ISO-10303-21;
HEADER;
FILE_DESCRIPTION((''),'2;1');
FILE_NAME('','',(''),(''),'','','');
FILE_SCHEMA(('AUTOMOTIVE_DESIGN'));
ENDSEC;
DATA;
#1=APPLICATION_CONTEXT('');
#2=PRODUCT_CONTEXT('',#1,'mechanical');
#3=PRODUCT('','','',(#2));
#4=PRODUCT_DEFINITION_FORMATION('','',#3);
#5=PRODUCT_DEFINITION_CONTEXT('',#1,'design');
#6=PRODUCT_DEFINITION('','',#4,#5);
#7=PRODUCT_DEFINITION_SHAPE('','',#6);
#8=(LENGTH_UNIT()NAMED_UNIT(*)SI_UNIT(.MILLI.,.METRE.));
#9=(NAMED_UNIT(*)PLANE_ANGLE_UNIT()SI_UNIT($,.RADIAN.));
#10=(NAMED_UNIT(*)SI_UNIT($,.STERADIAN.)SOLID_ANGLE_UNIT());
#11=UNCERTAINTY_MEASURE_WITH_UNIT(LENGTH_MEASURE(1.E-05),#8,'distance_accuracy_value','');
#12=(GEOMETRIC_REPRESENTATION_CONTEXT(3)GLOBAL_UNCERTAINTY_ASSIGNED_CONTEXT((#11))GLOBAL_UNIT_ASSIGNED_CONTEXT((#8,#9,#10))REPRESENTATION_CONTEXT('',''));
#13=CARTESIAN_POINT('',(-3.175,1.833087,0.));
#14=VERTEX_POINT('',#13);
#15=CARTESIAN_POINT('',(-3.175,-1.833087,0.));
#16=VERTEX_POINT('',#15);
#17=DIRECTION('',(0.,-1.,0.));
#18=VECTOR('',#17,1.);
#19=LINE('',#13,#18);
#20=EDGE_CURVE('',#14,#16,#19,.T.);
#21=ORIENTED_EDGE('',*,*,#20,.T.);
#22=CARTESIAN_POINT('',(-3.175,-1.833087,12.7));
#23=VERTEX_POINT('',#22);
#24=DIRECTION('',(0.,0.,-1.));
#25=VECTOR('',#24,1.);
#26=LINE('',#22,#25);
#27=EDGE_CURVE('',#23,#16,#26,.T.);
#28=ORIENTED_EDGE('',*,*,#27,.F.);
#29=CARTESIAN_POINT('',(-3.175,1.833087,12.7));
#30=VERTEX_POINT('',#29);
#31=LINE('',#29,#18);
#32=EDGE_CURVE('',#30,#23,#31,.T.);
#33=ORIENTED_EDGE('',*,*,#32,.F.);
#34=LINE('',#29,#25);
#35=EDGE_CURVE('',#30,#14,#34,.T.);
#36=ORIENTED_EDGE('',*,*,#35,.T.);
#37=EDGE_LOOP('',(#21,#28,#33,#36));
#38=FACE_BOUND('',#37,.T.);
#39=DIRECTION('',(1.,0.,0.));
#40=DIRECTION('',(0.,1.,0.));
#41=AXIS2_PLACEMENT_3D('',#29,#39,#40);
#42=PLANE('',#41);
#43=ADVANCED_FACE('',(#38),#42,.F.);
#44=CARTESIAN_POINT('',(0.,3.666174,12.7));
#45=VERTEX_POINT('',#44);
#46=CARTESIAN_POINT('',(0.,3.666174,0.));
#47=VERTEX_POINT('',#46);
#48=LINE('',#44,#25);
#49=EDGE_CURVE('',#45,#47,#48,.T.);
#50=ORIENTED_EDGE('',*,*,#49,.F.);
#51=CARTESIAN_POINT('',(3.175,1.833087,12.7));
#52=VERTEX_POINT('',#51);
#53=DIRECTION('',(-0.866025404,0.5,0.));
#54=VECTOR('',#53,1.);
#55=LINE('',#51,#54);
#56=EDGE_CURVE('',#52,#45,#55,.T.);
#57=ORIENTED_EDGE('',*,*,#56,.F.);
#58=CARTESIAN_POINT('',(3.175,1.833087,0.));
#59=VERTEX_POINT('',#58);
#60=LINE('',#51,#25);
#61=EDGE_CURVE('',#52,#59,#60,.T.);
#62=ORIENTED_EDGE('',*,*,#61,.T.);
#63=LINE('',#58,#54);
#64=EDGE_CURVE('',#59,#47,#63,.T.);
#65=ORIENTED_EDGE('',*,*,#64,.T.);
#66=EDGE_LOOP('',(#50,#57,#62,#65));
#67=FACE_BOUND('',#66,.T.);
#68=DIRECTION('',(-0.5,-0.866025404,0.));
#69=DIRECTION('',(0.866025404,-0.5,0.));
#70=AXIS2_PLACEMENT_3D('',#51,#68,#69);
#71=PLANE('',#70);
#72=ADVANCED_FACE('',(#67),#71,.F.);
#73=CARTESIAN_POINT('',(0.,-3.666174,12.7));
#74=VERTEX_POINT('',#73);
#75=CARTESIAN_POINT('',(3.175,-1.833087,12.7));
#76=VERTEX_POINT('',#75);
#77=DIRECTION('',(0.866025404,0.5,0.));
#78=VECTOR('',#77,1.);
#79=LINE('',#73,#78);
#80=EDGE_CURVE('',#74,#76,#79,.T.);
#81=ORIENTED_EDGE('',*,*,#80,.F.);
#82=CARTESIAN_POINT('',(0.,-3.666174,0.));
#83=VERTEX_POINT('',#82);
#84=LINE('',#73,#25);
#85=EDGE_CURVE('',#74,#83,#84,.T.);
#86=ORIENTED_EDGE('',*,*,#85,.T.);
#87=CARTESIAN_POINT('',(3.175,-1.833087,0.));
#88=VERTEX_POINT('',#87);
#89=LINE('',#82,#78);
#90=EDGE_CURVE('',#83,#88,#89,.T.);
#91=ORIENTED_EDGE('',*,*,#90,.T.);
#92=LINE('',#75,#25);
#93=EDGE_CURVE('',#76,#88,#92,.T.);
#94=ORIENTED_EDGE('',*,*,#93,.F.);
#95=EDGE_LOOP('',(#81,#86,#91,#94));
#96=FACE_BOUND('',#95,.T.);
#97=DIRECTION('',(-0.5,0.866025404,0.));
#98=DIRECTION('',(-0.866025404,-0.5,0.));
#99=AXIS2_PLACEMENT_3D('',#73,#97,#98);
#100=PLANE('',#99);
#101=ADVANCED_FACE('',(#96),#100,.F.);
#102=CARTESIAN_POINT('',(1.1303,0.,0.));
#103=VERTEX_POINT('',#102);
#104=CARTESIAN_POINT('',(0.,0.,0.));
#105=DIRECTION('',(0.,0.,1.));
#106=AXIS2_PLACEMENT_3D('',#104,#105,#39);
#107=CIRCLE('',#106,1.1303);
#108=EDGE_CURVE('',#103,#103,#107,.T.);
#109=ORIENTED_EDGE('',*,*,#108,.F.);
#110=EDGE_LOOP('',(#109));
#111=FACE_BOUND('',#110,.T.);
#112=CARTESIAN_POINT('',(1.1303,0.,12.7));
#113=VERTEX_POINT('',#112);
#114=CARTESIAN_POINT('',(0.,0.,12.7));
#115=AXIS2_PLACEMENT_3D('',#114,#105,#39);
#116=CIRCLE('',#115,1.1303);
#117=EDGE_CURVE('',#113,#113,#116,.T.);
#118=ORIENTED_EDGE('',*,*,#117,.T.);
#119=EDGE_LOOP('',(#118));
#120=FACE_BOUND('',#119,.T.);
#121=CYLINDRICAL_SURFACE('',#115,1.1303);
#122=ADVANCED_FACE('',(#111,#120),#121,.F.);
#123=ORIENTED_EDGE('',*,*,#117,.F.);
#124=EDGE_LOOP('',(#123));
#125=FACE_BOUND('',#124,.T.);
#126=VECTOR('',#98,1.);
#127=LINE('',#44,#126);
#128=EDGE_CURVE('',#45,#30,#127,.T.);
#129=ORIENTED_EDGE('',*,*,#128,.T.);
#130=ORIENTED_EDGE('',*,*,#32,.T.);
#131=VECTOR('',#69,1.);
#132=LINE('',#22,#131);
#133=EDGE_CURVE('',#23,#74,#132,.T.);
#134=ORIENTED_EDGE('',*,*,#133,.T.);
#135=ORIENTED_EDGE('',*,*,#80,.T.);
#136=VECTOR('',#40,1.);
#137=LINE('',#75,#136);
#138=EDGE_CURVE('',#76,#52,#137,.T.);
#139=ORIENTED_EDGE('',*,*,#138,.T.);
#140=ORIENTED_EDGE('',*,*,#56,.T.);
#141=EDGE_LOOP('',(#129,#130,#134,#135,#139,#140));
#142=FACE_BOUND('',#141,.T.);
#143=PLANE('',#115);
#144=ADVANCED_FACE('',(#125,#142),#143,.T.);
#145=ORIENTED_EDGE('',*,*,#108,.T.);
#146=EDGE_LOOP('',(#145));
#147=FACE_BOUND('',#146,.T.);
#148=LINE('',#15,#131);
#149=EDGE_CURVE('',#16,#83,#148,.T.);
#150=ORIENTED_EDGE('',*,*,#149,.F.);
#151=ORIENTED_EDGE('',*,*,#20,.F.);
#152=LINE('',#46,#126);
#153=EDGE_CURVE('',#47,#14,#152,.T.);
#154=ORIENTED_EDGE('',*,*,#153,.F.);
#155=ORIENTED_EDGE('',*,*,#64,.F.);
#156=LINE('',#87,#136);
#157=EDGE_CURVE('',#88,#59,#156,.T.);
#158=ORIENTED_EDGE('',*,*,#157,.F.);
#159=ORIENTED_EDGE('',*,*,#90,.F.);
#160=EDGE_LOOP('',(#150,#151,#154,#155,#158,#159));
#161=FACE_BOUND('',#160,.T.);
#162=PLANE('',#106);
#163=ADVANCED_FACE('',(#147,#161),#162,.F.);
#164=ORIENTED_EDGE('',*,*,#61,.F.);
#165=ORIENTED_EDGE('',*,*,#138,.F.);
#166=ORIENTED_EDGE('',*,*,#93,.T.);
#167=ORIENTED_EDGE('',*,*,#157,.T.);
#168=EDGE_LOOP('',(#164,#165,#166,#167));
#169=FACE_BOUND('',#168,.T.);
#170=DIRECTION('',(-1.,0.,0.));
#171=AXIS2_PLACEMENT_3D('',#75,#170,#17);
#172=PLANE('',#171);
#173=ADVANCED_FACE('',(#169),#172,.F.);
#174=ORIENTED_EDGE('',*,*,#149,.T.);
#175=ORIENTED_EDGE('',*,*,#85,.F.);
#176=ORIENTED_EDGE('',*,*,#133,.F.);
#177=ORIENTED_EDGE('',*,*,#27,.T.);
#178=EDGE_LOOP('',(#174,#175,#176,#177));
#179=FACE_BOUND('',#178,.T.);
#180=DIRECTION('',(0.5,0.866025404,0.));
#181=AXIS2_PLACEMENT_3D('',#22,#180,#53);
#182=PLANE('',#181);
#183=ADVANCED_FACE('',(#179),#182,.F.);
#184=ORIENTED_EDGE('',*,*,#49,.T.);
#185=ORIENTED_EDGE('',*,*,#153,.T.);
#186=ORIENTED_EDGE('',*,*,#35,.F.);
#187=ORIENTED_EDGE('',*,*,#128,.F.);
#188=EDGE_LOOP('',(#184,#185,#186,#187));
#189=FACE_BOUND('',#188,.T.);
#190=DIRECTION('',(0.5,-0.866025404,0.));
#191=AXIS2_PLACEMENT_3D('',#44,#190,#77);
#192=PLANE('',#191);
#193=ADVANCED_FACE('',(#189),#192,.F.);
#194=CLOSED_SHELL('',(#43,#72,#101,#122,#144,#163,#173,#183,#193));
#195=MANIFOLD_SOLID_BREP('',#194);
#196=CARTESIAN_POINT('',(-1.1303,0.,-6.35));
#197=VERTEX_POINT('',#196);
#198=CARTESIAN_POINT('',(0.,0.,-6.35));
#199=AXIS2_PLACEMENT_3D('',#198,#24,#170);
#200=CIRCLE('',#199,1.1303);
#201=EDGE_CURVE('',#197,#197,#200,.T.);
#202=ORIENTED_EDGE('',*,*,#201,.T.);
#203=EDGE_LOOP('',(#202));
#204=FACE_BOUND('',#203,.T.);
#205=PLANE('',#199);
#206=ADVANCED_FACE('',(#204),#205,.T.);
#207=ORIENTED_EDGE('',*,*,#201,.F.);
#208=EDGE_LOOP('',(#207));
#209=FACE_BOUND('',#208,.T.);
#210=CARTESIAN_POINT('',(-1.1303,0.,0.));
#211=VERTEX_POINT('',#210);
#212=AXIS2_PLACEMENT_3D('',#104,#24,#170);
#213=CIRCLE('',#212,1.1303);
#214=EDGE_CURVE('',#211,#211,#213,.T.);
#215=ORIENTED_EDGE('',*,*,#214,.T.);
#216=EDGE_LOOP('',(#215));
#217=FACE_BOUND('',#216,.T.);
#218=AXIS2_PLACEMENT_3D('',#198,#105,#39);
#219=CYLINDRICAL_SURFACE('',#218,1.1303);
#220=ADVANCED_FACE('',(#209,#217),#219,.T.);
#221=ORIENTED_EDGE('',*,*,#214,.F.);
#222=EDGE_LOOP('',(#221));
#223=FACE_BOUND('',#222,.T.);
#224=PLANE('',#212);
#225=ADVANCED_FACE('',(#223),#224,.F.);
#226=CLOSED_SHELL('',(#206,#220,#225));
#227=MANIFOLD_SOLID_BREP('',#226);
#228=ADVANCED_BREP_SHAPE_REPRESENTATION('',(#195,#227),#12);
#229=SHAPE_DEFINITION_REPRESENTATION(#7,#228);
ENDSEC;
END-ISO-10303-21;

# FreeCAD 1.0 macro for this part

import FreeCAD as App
import Part
import Sketcher

V = App.Vector
Q = App.Units.Quantity


def add_polygon(sketch, points):
    """Adds a closed chain of lines whose ends are joined by coincident constraints."""
    first, n = sketch.GeometryCount, len(points)
    for a, b in zip(points, points[1:] + points[:1]):
        sketch.addGeometry(Part.LineSegment(App.Vector(*a, 0), App.Vector(*b, 0)), False)
    for i in range(n):
        sketch.addConstraint(Sketcher.Constraint("Coincident", first + i, 2, first + (i + 1) % n, 1))

doc = App.newDocument("Part")
body = doc.addObject("PartDesign::Body", "Body")

sketch1 = body.newObject("Sketcher::SketchObject", "Sketch")
sketch1.AttachmentSupport = (doc.getObject("XY_Plane"), [""])
sketch1.MapMode = "FlatFace"
add_polygon(sketch1, [(0, 3.7), (-3.2, 1.8), (-3.2, -1.8), (0, -3.7), (3.2, -1.8), (3.2, 1.8)])
sketch1.addConstraint(Sketcher.Constraint("Vertical", 1))
sketch1.addConstraint(Sketcher.Constraint("Vertical", 4))
sketch1.addConstraint(Sketcher.Constraint("Symmetric", 0, 2, 3, 2, -1, 1))
sketch1.addConstraint(Sketcher.Constraint("Symmetric", 2, 2, 5, 2, -1, 1))
sketch1.addConstraint(Sketcher.Constraint("PointOnObject", 2, 2, -2))
sketch1.addConstraint(Sketcher.Constraint("Parallel", 2, 5))
sketch1.addConstraint(Sketcher.Constraint("Horizontal", 1, 2, 3, 2))
sketch1.addConstraint(Sketcher.Constraint("Angle", 0, Q("-150 deg")))
sketch1.addConstraint(Sketcher.Constraint("DistanceX", 1, 2, 3, 2, Q("0.25 in")))
sketch1.addConstraint(Sketcher.Constraint("DistanceY", 1, 2, 1, 1, 3.666174))
pad1 = body.newObject("PartDesign::Pad", "Pad")
pad1.Profile = sketch1
pad1.Length = Q("0.5 in")

sketch2 = body.newObject("Sketcher::SketchObject", "Sketch001")
sketch2.AttachmentSupport = (doc.getObject("XY_Plane"), [""])
sketch2.MapMode = "FlatFace"
sketch2.AttachmentOffset = App.Placement(V(0, 0, 0.5 * 25.4), App.Rotation())
sketch2.addGeometry(Part.Circle(V(0, 0, 0), V(0, 0, 1), 1.1), False)
sketch2.addConstraint(Sketcher.Constraint("Coincident", 0, 3, -1, 1))
sketch2.addConstraint(Sketcher.Constraint("Diameter", 0, Q("0.089 in")))
doc.recompute()
hole = body.newObject("PartDesign::Hole", "Hole")
hole.Profile = sketch2
hole.ThreadType = "None"
hole.Diameter = Q("0.089 in")
hole.DepthType = "Dimension"
hole.Depth = Q("0.5 in")
hole.DrillPoint = "Angled"
hole.DrillPointAngle = 118
body2 = doc.addObject("PartDesign::Body", "Body001")

sketch3 = body2.newObject("Sketcher::SketchObject", "Sketch002")
sketch3.AttachmentSupport = (doc.getObject("XY_Plane001"), [""])
sketch3.MapMode = "FlatFace"
sketch3.AttachmentOffset = App.Placement(V(0, 0, -0.25 * 25.4), App.Rotation())
sketch3.addGeometry(Part.Circle(V(0, 0, 0), V(0, 0, 1), 1.1), False)
sketch3.addConstraint(Sketcher.Constraint("Coincident", 0, 3, -1, 1))
sketch3.addConstraint(Sketcher.Constraint("Diameter", 0, Q("0.089 in")))
pad2 = body2.newObject("PartDesign::Pad", "Pad001")
pad2.Profile = sketch3
pad2.Length = Q("0.25 in")

doc.recompute()
